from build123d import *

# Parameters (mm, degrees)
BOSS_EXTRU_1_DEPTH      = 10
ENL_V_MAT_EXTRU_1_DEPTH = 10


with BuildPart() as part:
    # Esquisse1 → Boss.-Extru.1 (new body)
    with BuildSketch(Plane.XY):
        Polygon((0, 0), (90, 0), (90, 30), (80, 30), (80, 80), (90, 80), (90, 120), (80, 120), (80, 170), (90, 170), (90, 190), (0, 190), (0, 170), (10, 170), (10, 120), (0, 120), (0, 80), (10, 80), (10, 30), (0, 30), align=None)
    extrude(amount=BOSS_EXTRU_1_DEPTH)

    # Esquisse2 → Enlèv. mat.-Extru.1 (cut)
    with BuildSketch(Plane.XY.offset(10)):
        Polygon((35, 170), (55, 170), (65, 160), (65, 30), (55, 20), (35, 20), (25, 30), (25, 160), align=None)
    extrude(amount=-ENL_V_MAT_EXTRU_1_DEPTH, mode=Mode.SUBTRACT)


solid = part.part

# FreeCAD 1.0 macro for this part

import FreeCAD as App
import Part
import Sketcher
from FreeCAD import Vector


def add_polygon(sketch, points):
    """Adds a closed chain of lines whose ends are joined by coincident constraints."""
    first, n = sketch.GeometryCount, len(points)
    for a, b in zip(points, points[1:] + points[:1]):
        sketch.addGeometry(Part.LineSegment(App.Vector(*a, 0), App.Vector(*b, 0)), False)
    for i in range(n):
        sketch.addConstraint(Sketcher.Constraint("Coincident", first + i, 2, first + (i + 1) % n, 1))

doc = App.newDocument("Part")
body = doc.addObject("PartDesign::Body", "Body")

# Sketch on XY plane
sketch1 = body.newObject("Sketcher::SketchObject", "Sketch")
sketch1.AttachmentSupport = (doc.getObject("XY_Plane"), [""])
sketch1.MapMode = "FlatFace"
add_polygon(sketch1, [(0, 0), (90, 0), (90, 30), (80, 30), (80, 80), (90, 80), (90, 120), (80, 120), (80, 170), (90, 170), (90, 190), (0, 190), (0, 170), (10, 170), (10, 120), (0, 120), (0, 80), (10, 80), (10, 30), (0, 30)])  # lines 0-19
sketch1.addConstraint(Sketcher.Constraint("Horizontal", 0))
sketch1.addConstraint(Sketcher.Constraint("Vertical", 1))
sketch1.addConstraint(Sketcher.Constraint("Horizontal", 2))
sketch1.addConstraint(Sketcher.Constraint("Vertical", 3))
sketch1.addConstraint(Sketcher.Constraint("Horizontal", 4))
sketch1.addConstraint(Sketcher.Constraint("Vertical", 5))
sketch1.addConstraint(Sketcher.Constraint("Horizontal", 6))
sketch1.addConstraint(Sketcher.Constraint("Vertical", 7))
sketch1.addConstraint(Sketcher.Constraint("Horizontal", 8))
sketch1.addConstraint(Sketcher.Constraint("Vertical", 9))
sketch1.addConstraint(Sketcher.Constraint("Horizontal", 10))
sketch1.addConstraint(Sketcher.Constraint("Vertical", 11))
sketch1.addConstraint(Sketcher.Constraint("Horizontal", 12))
sketch1.addConstraint(Sketcher.Constraint("Vertical", 13))
sketch1.addConstraint(Sketcher.Constraint("Horizontal", 14))
sketch1.addConstraint(Sketcher.Constraint("Vertical", 15))
sketch1.addConstraint(Sketcher.Constraint("Horizontal", 16))
sketch1.addConstraint(Sketcher.Constraint("Vertical", 17))
sketch1.addConstraint(Sketcher.Constraint("Horizontal", 18))
sketch1.addConstraint(Sketcher.Constraint("Vertical", 19))
sketch1.addConstraint(Sketcher.Constraint("Coincident", 19, 2, -1, 1))
sketch1.addConstraint(Sketcher.Constraint("PointOnObject", 10, 2, -2))
sketch1.addConstraint(Sketcher.Constraint("PointOnObject", 14, 2, -2))
sketch1.addConstraint(Sketcher.Constraint("Horizontal", 8, 2, 11, 2))
sketch1.addConstraint(Sketcher.Constraint("Horizontal", 6, 2, 13, 2))
sketch1.addConstraint(Sketcher.Constraint("Horizontal", 4, 2, 15, 2))
sketch1.addConstraint(Sketcher.Constraint("Horizontal", 2, 2, 17, 2))
sketch1.addConstraint(Sketcher.Constraint("Vertical", 1, 2, 4, 2))
sketch1.addConstraint(Sketcher.Constraint("Vertical", 3, 2, 6, 2))
sketch1.addConstraint(Sketcher.Constraint("Vertical", 5, 2, 8, 2))
sketch1.addConstraint(Sketcher.Constraint("Vertical", 13, 2, 16, 2))
sketch1.addConstraint(Sketcher.Constraint("Equal", 8, 12))
sketch1.addConstraint(Sketcher.Constraint("Equal", 3, 7))
sketch1.addConstraint(Sketcher.Constraint("DistanceX", 0, 1, 0, 2, 90.0))
sketch1.addConstraint(Sketcher.Constraint("DistanceX", 2, 2, 2, 1, 10.0))
sketch1.addConstraint(Sketcher.Constraint("DistanceY", 1, 1, 1, 2, 30.0))
sketch1.addConstraint(Sketcher.Constraint("DistanceY", 3, 1, 3, 2, 50.0))
sketch1.addConstraint(Sketcher.Constraint("DistanceY", 5, 1, 5, 2, 40.0))
sketch1.addConstraint(Sketcher.Constraint("DistanceY", 9, 1, 9, 2, 20.0))
pad1 = body.newObject("PartDesign::Pad", "Pad")
pad1.Profile = sketch1
pad1.Length = 10

# Sketch on XY plane
sketch2 = body.newObject("Sketcher::SketchObject", "Sketch001")
sketch2.AttachmentSupport = (doc.getObject("XY_Plane"), [""])
sketch2.MapMode = "FlatFace"
sketch2.AttachmentOffset = App.Placement(Vector(0, 0, 10), App.Rotation())
add_polygon(sketch2, [(55, 170), (35, 170), (25, 160), (25, 30), (35, 20), (55, 20), (65, 30), (65, 160)])  # lines 0-7
sketch2.addConstraint(Sketcher.Constraint("Horizontal", 0))
sketch2.addConstraint(Sketcher.Constraint("Vertical", 2))
sketch2.addConstraint(Sketcher.Constraint("Horizontal", 4))
sketch2.addConstraint(Sketcher.Constraint("Vertical", 6))
sketch2.addConstraint(Sketcher.Constraint("Perpendicular", 1, 3))
sketch2.addConstraint(Sketcher.Constraint("Perpendicular", 3, 5))
sketch2.addConstraint(Sketcher.Constraint("Perpendicular", 5, 7))
sketch2.addConstraint(Sketcher.Constraint("Horizontal", 2, 2, 5, 2))
sketch2.addConstraint(Sketcher.Constraint("Horizontal", 1, 2, 6, 2))
sketch2.addConstraint(Sketcher.Constraint("Vertical", 0, 2, 3, 2))
sketch2.addConstraint(Sketcher.Constraint("Vertical", 4, 2, 7, 2))
sketch2.addConstraint(Sketcher.Constraint("DistanceX", 0, 2, 0, 1, 20.0))
sketch2.addConstraint(Sketcher.Constraint("DistanceY", 2, 2, 2, 1, 130.0))
sketch2.addConstraint(Sketcher.Constraint("DistanceX", -1, 1, 0, 2, 35.0))
sketch2.addConstraint(Sketcher.Constraint("DistanceY", -1, 1, 0, 2, 170.0))
sketch2.addConstraint(Sketcher.Constraint("DistanceX", -1, 1, 1, 2, 25.0))
pocket1 = body.newObject("PartDesign::Pocket", "Pocket")
pocket1.Profile = sketch2
pocket1.Length = 10

doc.recompute()
